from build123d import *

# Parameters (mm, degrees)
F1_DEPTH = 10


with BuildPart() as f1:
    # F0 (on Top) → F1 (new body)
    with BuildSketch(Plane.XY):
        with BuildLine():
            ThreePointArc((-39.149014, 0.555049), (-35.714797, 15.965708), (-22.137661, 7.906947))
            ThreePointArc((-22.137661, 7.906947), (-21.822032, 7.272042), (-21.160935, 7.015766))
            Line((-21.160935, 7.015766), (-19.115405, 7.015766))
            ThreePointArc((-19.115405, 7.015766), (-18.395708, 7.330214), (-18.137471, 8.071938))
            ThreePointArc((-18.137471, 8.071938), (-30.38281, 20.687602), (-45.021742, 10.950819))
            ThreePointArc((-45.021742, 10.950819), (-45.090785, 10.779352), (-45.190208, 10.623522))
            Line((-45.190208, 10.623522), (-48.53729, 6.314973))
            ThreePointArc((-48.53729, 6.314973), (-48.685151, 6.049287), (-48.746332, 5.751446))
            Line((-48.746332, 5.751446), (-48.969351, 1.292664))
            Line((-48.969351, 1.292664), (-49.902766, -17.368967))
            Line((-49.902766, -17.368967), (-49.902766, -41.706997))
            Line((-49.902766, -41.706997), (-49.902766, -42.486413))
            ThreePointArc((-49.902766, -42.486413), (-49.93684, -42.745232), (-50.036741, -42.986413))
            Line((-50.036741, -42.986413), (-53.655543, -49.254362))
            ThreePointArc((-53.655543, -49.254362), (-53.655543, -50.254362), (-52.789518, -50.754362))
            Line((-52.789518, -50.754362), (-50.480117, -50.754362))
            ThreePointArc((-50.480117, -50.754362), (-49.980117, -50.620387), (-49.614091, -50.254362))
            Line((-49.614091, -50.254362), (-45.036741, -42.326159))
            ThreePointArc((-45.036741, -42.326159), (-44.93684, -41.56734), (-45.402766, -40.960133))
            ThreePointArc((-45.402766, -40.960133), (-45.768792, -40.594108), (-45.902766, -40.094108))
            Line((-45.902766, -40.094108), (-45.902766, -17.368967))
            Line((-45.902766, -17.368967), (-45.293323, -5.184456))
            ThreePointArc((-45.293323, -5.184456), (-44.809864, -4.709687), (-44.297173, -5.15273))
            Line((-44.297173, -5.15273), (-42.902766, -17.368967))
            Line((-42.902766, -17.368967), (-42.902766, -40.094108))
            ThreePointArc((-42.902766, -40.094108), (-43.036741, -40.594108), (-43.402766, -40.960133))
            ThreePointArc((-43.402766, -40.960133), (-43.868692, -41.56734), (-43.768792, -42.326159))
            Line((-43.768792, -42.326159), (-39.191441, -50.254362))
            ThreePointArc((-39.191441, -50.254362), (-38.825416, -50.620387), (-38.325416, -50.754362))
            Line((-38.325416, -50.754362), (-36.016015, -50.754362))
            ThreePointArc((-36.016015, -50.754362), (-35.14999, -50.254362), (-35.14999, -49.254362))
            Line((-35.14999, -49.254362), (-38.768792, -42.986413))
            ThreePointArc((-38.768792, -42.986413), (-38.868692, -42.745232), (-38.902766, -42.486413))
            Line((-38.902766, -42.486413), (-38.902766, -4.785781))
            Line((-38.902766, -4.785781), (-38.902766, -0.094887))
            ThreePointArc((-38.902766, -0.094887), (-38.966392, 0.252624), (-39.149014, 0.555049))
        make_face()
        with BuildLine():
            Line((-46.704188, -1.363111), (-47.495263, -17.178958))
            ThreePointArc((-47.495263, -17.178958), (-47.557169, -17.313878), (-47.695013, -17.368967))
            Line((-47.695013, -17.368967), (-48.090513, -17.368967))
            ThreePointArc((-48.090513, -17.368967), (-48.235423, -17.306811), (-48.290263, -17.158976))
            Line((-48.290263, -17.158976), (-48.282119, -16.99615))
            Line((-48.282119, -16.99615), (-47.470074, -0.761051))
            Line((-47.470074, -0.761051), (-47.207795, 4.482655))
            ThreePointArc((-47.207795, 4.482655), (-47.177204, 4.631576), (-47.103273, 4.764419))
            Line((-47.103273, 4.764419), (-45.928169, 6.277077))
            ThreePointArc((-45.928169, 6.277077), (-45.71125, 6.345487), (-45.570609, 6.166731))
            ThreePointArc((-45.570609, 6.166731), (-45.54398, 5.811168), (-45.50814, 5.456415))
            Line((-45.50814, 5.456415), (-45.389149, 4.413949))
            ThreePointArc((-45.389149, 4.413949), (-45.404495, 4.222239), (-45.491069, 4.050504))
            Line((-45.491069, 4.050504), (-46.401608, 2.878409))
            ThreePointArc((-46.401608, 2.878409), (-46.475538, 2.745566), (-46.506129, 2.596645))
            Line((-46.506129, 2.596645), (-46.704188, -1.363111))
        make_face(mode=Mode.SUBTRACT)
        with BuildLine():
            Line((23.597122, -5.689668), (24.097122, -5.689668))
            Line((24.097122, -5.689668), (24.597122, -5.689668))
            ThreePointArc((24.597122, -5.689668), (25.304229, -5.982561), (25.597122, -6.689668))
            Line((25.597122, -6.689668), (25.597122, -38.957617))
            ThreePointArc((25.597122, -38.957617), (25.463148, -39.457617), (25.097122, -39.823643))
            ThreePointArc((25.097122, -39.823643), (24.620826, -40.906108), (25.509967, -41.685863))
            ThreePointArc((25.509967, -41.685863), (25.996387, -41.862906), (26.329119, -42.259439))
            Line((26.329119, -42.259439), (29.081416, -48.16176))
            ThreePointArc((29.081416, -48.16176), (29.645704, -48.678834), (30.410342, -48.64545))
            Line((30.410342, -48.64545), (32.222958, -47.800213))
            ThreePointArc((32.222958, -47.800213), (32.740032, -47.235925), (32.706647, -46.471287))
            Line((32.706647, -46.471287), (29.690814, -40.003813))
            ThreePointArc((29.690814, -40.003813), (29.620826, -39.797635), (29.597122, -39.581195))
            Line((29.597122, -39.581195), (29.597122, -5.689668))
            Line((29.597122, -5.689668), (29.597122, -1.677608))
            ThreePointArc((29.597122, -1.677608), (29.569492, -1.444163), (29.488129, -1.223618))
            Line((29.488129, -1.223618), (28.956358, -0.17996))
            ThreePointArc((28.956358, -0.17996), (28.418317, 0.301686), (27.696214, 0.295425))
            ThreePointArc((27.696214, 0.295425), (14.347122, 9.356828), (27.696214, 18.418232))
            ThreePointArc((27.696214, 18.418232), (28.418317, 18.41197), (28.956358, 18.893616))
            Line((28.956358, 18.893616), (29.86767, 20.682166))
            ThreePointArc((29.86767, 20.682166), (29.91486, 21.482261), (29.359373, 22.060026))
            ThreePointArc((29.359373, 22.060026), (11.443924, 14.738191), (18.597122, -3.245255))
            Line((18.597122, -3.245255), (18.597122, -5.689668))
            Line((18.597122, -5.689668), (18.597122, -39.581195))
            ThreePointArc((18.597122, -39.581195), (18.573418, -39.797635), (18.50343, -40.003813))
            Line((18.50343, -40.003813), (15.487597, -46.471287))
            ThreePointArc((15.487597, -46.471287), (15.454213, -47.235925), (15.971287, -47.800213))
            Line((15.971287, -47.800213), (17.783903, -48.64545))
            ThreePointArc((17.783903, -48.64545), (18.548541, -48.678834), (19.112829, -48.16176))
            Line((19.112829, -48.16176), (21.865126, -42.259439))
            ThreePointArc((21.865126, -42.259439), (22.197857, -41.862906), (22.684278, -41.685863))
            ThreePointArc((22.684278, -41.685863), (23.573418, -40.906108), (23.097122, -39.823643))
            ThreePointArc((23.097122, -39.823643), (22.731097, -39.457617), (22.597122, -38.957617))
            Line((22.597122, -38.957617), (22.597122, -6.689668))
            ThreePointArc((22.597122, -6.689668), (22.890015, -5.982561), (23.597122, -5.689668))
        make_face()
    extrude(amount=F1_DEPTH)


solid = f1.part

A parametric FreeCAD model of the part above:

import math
import FreeCAD as App
import Part
import Sketcher
from FreeCAD import Vector

doc = App.newDocument("Part")
body = doc.addObject("PartDesign::Body", "Body")
body.AllowCompound = True

# Sketch on XY plane
sketch1 = body.newObject("Sketcher::SketchObject", "Sketch")
sketch1.AttachmentSupport = (doc.getObject("XY_Plane"), [""])
sketch1.MapMode = "FlatFace"
sketch1.addGeometry([
    Part.ArcOfCircle(Part.Circle(Vector(-31.846847, 7.015766, 0), Vector(0, 0, 1), 9.75), math.radians(5.244337), math.radians(221.501344)),  # 0
    Part.ArcOfCircle(Part.Circle(Vector(-21.160934, 7.996599, 0), Vector(0, 0, 1), 0.980833), math.radians(-174.755637), math.radians(-90.00005)),  # 1
    Part.LineSegment(Vector(-21.160935, 7.015766, 0), Vector(-19.115405, 7.015766, 0)),  # 2
    Part.ArcOfCircle(Part.Circle(Vector(-19.115405, 7.996598, 0), Vector(0, 0, 1), 0.980832), math.radians(-90.000008), math.radians(4.405381)),  # 3
    Part.ArcOfCircle(Part.Circle(Vector(-31.846847, 7.015766, 0), Vector(0, 0, 1), 13.75), math.radians(4.40537), math.radians(163.370267)),  # 4
    Part.ArcOfCircle(Part.Circle(Vector(-45.97991, 11.237002, 0), Vector(0, 0, 1), 0.999994), math.radians(-37.841821), math.radians(-16.629665)),  # 5
    Part.LineSegment(Vector(-45.190208, 10.623522, 0), Vector(-48.53729, 6.314973, 0)),  # 6
    Part.ArcOfCircle(Part.Circle(Vector(-47.747579, 5.701491, 0), Vector(0, 0, 1), 1.000002), math.radians(142.15841), math.radians(177.136622)),  # 7
    Part.LineSegment(Vector(-48.746332, 5.751446, 0), Vector(-48.969351, 1.292664, 0)),  # 8
    Part.LineSegment(Vector(-48.969351, 1.292664, 0), Vector(-49.902766, -17.368967, 0)),  # 9
    Part.LineSegment(Vector(-49.902766, -17.368967, 0), Vector(-49.902766, -42.486413, 0)),  # 10
    Part.ArcOfCircle(Part.Circle(Vector(-50.902756, -42.486415, 0), Vector(0, 0, 1), 0.99999), math.radians(-30.000193), math.radians(0.000107)),  # 11
    Part.LineSegment(Vector(-50.036741, -42.986413, 0), Vector(-53.655543, -49.254362, 0)),  # 12
    Part.ArcOfCircle(Part.Circle(Vector(-52.789518, -49.754362, 0), Vector(0, 0, 1), 1), math.radians(150), math.radians(269.999977)),  # 13
    Part.LineSegment(Vector(-52.789518, -50.754362, 0), Vector(-50.480117, -50.754362, 0)),  # 14
    Part.ArcOfCircle(Part.Circle(Vector(-50.480119, -49.754358, 0), Vector(0, 0, 1), 1.000004), math.radians(-89.999896), math.radians(-30.000139)),  # 15
    Part.LineSegment(Vector(-49.614091, -50.254362, 0), Vector(-45.036741, -42.326159, 0)),  # 16
    Part.ArcOfCircle(Part.Circle(Vector(-45.902766, -41.826158, 0), Vector(0, 0, 1), 1), math.radians(-30.000046), math.radians(60.000002)),  # 17
    Part.ArcOfCircle(Part.Circle(Vector(-44.902771, -40.09411, 0), Vector(0, 0, 1), 0.999995), math.radians(179.99987), math.radians(240.000154)),  # 18
    Part.LineSegment(Vector(-45.902766, -40.094108, 0), Vector(-45.902766, -17.368967, 0)),  # 19
    Part.LineSegment(Vector(-45.902766, -17.368967, 0), Vector(-45.293323, -5.184456, 0)),  # 20
    Part.ArcOfCircle(Part.Circle(Vector(-44.793947, -5.209434, 0), Vector(0, 0, 1), 0.5), math.radians(6.511761), math.radians(177.136588)),  # 21
    Part.LineSegment(Vector(-44.297173, -5.15273, 0), Vector(-42.902766, -17.368967, 0)),  # 22
    Part.LineSegment(Vector(-42.902766, -17.368967, 0), Vector(-42.902766, -40.094108, 0)),  # 23
    Part.ArcOfCircle(Part.Circle(Vector(-43.902767, -40.094107, 0), Vector(0, 0, 1), 1.000001), math.radians(-59.999968), math.radians(-0.000055)),  # 24
    Part.ArcOfCircle(Part.Circle(Vector(-42.902765, -41.826159, 0), Vector(0, 0, 1), 1.000001), math.radians(120.000033), math.radians(209.999933)),  # 25
    Part.LineSegment(Vector(-43.768792, -42.326159, 0), Vector(-39.191441, -50.254362, 0)),  # 26
    Part.ArcOfCircle(Part.Circle(Vector(-38.325415, -49.754361, 0), Vector(0, 0, 1), 1.000001), math.radians(-149.999968), math.radians(-90.000055)),  # 27
    Part.LineSegment(Vector(-38.325416, -50.754362, 0), Vector(-36.016015, -50.754362, 0)),  # 28
    Part.ArcOfCircle(Part.Circle(Vector(-36.016015, -49.754362, 0), Vector(0, 0, 1), 1), math.radians(-89.999977), math.radians(30)),  # 29
    Part.LineSegment(Vector(-35.14999, -49.254362, 0), Vector(-38.768792, -42.986413, 0)),  # 30
    Part.ArcOfCircle(Part.Circle(Vector(-37.902763, -42.486413, 0), Vector(0, 0, 1), 1.000003), math.radians(179.999989), math.radians(209.999883)),  # 31
    Part.LineSegment(Vector(-38.902766, -42.486413, 0), Vector(-38.902766, -0.094887, 0)),  # 32
    Part.ArcOfCircle(Part.Circle(Vector(-39.883599, -0.094888, 0), Vector(0, 0, 1), 0.980833), math.radians(0.000069), math.radians(41.501361)),  # 33
    Part.LineSegment(Vector(-46.506129, 2.596645, 0), Vector(-46.704188, -1.363111, 0)),  # 34
    Part.LineSegment(Vector(-46.704188, -1.363111, 0), Vector(-47.495263, -17.178958, 0)),  # 35
    Part.ArcOfCircle(Part.Circle(Vector(-47.695012, -17.168969, 0), Vector(0, 0, 1), 0.199998), math.radians(-90.000359), math.radians(-2.862959)),  # 36
    Part.LineSegment(Vector(-47.695013, -17.368967, 0), Vector(-48.090513, -17.368967, 0)),  # 37
    Part.ArcOfCircle(Part.Circle(Vector(-48.090512, -17.168967, 0), Vector(0, 0, 1), 0.2), math.radians(177.136662), math.radians(269.999852)),  # 38
    Part.LineSegment(Vector(-48.290263, -17.158976, 0), Vector(-48.282119, -16.99615, 0)),  # 39
    Part.LineSegment(Vector(-48.282119, -16.99615, 0), Vector(-47.470074, -0.761051, 0)),  # 40
    Part.LineSegment(Vector(-47.470074, -0.761051, 0), Vector(-47.207795, 4.482655, 0)),  # 41
    Part.ArcOfCircle(Part.Circle(Vector(-46.708417, 4.457677, 0), Vector(0, 0, 1), 0.500002), math.radians(142.158246), math.radians(177.136495)),  # 42
    Part.LineSegment(Vector(-47.103273, 4.764419, 0), Vector(-45.928169, 6.277077, 0)),  # 43
    Part.ArcOfCircle(Part.Circle(Vector(-45.770227, 6.154381, 0), Vector(0, 0, 1), 0.2), math.radians(3.540398), math.radians(142.158277)),  # 44
    Part.ArcOfCircle(Part.Circle(Vector(-31.847477, 7.015712, 0), Vector(0, 0, 1), 13.749368), math.radians(-176.459911), math.radians(-173.488155)),  # 45
    Part.LineSegment(Vector(-45.50814, 5.456415, 0), Vector(-45.389149, 4.413949, 0)),  # 46
    Part.ArcOfCircle(Part.Circle(Vector(-45.885926, 4.357246, 0), Vector(0, 0, 1), 0.500002), math.radians(-37.841616), math.radians(6.511693)),  # 47
    Part.LineSegment(Vector(-45.491069, 4.050504, 0), Vector(-46.401608, 2.878409, 0)),  # 48
    Part.ArcOfCircle(Part.Circle(Vector(-46.006743, 2.571665, 0), Vector(0, 0, 1), 0.50001), math.radians(142.158754), math.radians(177.136344)),  # 49
    Part.LineSegment(Vector(23.597122, -5.689668, 0), Vector(24.597122, -5.689668, 0)),  # 50
    Part.ArcOfCircle(Part.Circle(Vector(24.597123, -6.689667, 0), Vector(0, 0, 1), 0.999999), math.radians(-0.000043), math.radians(90.000043)),  # 51
    Part.LineSegment(Vector(25.597122, -6.689668, 0), Vector(25.597122, -38.957617, 0)),  # 52
    Part.ArcOfCircle(Part.Circle(Vector(24.597123, -38.957618, 0), Vector(0, 0, 1), 0.999999), math.radians(-60.000047), math.radians(0.000081)),  # 53
    Part.ArcOfCircle(Part.Circle(Vector(25.597122, -40.689668, 0), Vector(0, 0, 1), 1), math.radians(119.999996), math.radians(265.000049)),  # 54
    Part.ArcOfCircle(Part.Circle(Vector(25.422808, -42.682062, 0), Vector(0, 0, 1), 1.000005), math.radians(25.000192), math.radians(84.999846)),  # 55
    Part.LineSegment(Vector(26.329119, -42.259439, 0), Vector(29.081416, -48.16176, 0)),  # 56
    Part.ArcOfCircle(Part.Circle(Vector(29.987725, -47.73914, 0), Vector(0, 0, 1), 1.000002), math.radians(-154.99992), math.radians(-65.000118)),  # 57
    Part.LineSegment(Vector(30.410342, -48.64545, 0), Vector(32.222958, -47.800213, 0)),  # 58
    Part.ArcOfCircle(Part.Circle(Vector(31.800339, -46.893905, 0), Vector(0, 0, 1), 1), math.radians(-64.999957), math.radians(24.999995)),  # 59
    Part.LineSegment(Vector(32.706647, -46.471287, 0), Vector(29.690814, -40.003813, 0)),  # 60
    Part.ArcOfCircle(Part.Circle(Vector(30.597121, -39.581196, 0), Vector(0, 0, 1), 0.999999), math.radians(179.999971), math.radians(204.999989)),  # 61
    Part.LineSegment(Vector(29.597122, -39.581195, 0), Vector(29.597122, -1.677608, 0)),  # 62
    Part.ArcOfCircle(Part.Circle(Vector(28.597118, -1.677608, 0), Vector(0, 0, 1), 1.000004), math.radians(0.000028), math.radians(26.999887)),  # 63
    Part.LineSegment(Vector(29.488129, -1.223618, 0), Vector(28.956358, -0.17996, 0)),  # 64
    Part.ArcOfCircle(Part.Circle(Vector(28.065351, -0.633951, 0), Vector(0, 0, 1), 1.000001), math.radians(27.000004), math.radians(111.662374)),  # 65
    Part.ArcOfCircle(Part.Circle(Vector(24.097122, 9.356829, 0), Vector(0, 0, 1), 9.75), math.radians(68.337556), math.radians(291.662444)),  # 66
    Part.ArcOfCircle(Part.Circle(Vector(28.065352, 19.347605, 0), Vector(0, 0, 1), 0.999999), math.radians(-111.662493), math.radians(-26.999964)),  # 67
    Part.LineSegment(Vector(28.956358, 18.893616, 0), Vector(29.86767, 20.682166, 0)),  # 68
    Part.ArcOfCircle(Part.Circle(Vector(28.976664, 21.136157, 0), Vector(0, 0, 1), 1), math.radians(-27.00004), math.radians(67.498401)),  # 69
    Part.ArcOfCircle(Part.Circle(Vector(24.097123, 9.356828, 0), Vector(0, 0, 1), 13.75), math.radians(67.498409), math.radians(246.421818)),  # 70
    Part.LineSegment(Vector(18.597122, -3.245255, 0), Vector(18.597122, -39.581195, 0)),  # 71
    Part.ArcOfCircle(Part.Circle(Vector(17.597123, -39.581196, 0), Vector(0, 0, 1), 0.999999), math.radians(-24.999989), math.radians(0.000029)),  # 72
    Part.LineSegment(Vector(18.50343, -40.003813, 0), Vector(15.487597, -46.471287, 0)),  # 73
    Part.ArcOfCircle(Part.Circle(Vector(16.393907, -46.893904, 0), Vector(0, 0, 1), 1.000002), math.radians(155.000118), math.radians(244.99992)),  # 74
    Part.LineSegment(Vector(15.971287, -47.800213, 0), Vector(17.783903, -48.64545, 0)),  # 75
    Part.ArcOfCircle(Part.Circle(Vector(18.20652, -47.73914, 0), Vector(0, 0, 1), 1.000002), math.radians(-114.999882), math.radians(-25.00008)),  # 76
    Part.LineSegment(Vector(19.112829, -48.16176, 0), Vector(21.865126, -42.259439, 0)),  # 77
    Part.ArcOfCircle(Part.Circle(Vector(22.771434, -42.682059, 0), Vector(0, 0, 1), 1.000001), math.radians(95.000031), math.radians(154.999931)),  # 78
    Part.ArcOfCircle(Part.Circle(Vector(22.597122, -40.689668, 0), Vector(0, 0, 1), 1), math.radians(-84.999988), math.radians(60.000002)),  # 79
    Part.ArcOfCircle(Part.Circle(Vector(23.597126, -38.957615, 0), Vector(0, 0, 1), 1.000004), math.radians(-179.999896), math.radians(-120.000139)),  # 80
    Part.LineSegment(Vector(22.597122, -38.957617, 0), Vector(22.597122, -6.689668, 0)),  # 81
    Part.ArcOfCircle(Part.Circle(Vector(23.597121, -6.689667, 0), Vector(0, 0, 1), 0.999999), math.radians(89.999957), math.radians(180.000043)),  # 82
], False)
sketch1.addConstraint([
    Sketcher.Constraint("Coincident", 0, 1, 1, 1),
    Sketcher.Constraint("Coincident", 1, 2, 2, 1),
    Sketcher.Constraint("Coincident", 2, 2, 3, 1),
    Sketcher.Constraint("Coincident", 3, 2, 4, 1),
    Sketcher.Constraint("Coincident", 4, 2, 5, 2),
    Sketcher.Constraint("Coincident", 5, 1, 6, 1),
    Sketcher.Constraint("Coincident", 6, 2, 7, 1),
    Sketcher.Constraint("Coincident", 7, 2, 8, 1),
    Sketcher.Constraint("Coincident", 8, 2, 9, 1),
    Sketcher.Constraint("Coincident", 9, 2, 10, 1),
    Sketcher.Constraint("Coincident", 10, 2, 11, 2),
    Sketcher.Constraint("Coincident", 11, 1, 12, 1),
    Sketcher.Constraint("Coincident", 12, 2, 13, 1),
    Sketcher.Constraint("Coincident", 13, 2, 14, 1),
    Sketcher.Constraint("Coincident", 14, 2, 15, 1),
    Sketcher.Constraint("Coincident", 15, 2, 16, 1),
    Sketcher.Constraint("Coincident", 16, 2, 17, 1),
    Sketcher.Constraint("Coincident", 17, 2, 18, 2),
    Sketcher.Constraint("Coincident", 18, 1, 19, 1),
    Sketcher.Constraint("Coincident", 19, 2, 20, 1),
    Sketcher.Constraint("Coincident", 20, 2, 21, 2),
    Sketcher.Constraint("Coincident", 21, 1, 22, 1),
    Sketcher.Constraint("Coincident", 22, 2, 23, 1),
    Sketcher.Constraint("Coincident", 23, 2, 24, 2),
    Sketcher.Constraint("Coincident", 24, 1, 25, 1),
    Sketcher.Constraint("Coincident", 25, 2, 26, 1),
    Sketcher.Constraint("Coincident", 26, 2, 27, 1),
    Sketcher.Constraint("Coincident", 27, 2, 28, 1),
    Sketcher.Constraint("Coincident", 28, 2, 29, 1),
    Sketcher.Constraint("Coincident", 29, 2, 30, 1),
    Sketcher.Constraint("Coincident", 30, 2, 31, 2),
    Sketcher.Constraint("Coincident", 31, 1, 32, 1),
    Sketcher.Constraint("Coincident", 32, 2, 33, 1),
    Sketcher.Constraint("Coincident", 33, 2, 0, 2),
    Sketcher.Constraint("Coincident", 34, 2, 35, 1),
    Sketcher.Constraint("Coincident", 35, 2, 36, 2),
    Sketcher.Constraint("Coincident", 36, 1, 37, 1),
    Sketcher.Constraint("Coincident", 37, 2, 38, 2),
    Sketcher.Constraint("Coincident", 38, 1, 39, 1),
    Sketcher.Constraint("Coincident", 39, 2, 40, 1),
    Sketcher.Constraint("Coincident", 40, 2, 41, 1),
    Sketcher.Constraint("Coincident", 41, 2, 42, 2),
    Sketcher.Constraint("Coincident", 42, 1, 43, 1),
    Sketcher.Constraint("Coincident", 43, 2, 44, 2),
    Sketcher.Constraint("Coincident", 44, 1, 45, 1),
    Sketcher.Constraint("Coincident", 45, 2, 46, 1),
    Sketcher.Constraint("Coincident", 46, 2, 47, 2),
    Sketcher.Constraint("Coincident", 47, 1, 48, 1),
    Sketcher.Constraint("Coincident", 48, 2, 49, 1),
    Sketcher.Constraint("Coincident", 49, 2, 34, 1),
    Sketcher.Constraint("Coincident", 50, 2, 51, 2),
    Sketcher.Constraint("Coincident", 51, 1, 52, 1),
    Sketcher.Constraint("Coincident", 52, 2, 53, 2),
    Sketcher.Constraint("Coincident", 53, 1, 54, 1),
    Sketcher.Constraint("Coincident", 54, 2, 55, 2),
    Sketcher.Constraint("Coincident", 55, 1, 56, 1),
    Sketcher.Constraint("Coincident", 56, 2, 57, 1),
    Sketcher.Constraint("Coincident", 57, 2, 58, 1),
    Sketcher.Constraint("Coincident", 58, 2, 59, 1),
    Sketcher.Constraint("Coincident", 59, 2, 60, 1),
    Sketcher.Constraint("Coincident", 60, 2, 61, 2),
    Sketcher.Constraint("Coincident", 61, 1, 62, 1),
    Sketcher.Constraint("Coincident", 62, 2, 63, 1),
    Sketcher.Constraint("Coincident", 63, 2, 64, 1),
    Sketcher.Constraint("Coincident", 64, 2, 65, 1),
    Sketcher.Constraint("Coincident", 65, 2, 66, 2),
    Sketcher.Constraint("Coincident", 66, 1, 67, 1),
    Sketcher.Constraint("Coincident", 67, 2, 68, 1),
    Sketcher.Constraint("Coincident", 68, 2, 69, 1),
    Sketcher.Constraint("Coincident", 69, 2, 70, 1),
    Sketcher.Constraint("Coincident", 70, 2, 71, 1),
    Sketcher.Constraint("Coincident", 71, 2, 72, 2),
    Sketcher.Constraint("Coincident", 72, 1, 73, 1),
    Sketcher.Constraint("Coincident", 73, 2, 74, 1),
    Sketcher.Constraint("Coincident", 74, 2, 75, 1),
    Sketcher.Constraint("Coincident", 75, 2, 76, 1),
    Sketcher.Constraint("Coincident", 76, 2, 77, 1),
    Sketcher.Constraint("Coincident", 77, 2, 78, 2),
    Sketcher.Constraint("Coincident", 78, 1, 79, 1),
    Sketcher.Constraint("Coincident", 79, 2, 80, 2),
    Sketcher.Constraint("Coincident", 80, 1, 81, 1),
    Sketcher.Constraint("Coincident", 81, 2, 82, 2),
    Sketcher.Constraint("Coincident", 82, 1, 50, 1),
    Sketcher.Constraint("Horizontal", 2),
    Sketcher.Constraint("Vertical", 10),
    Sketcher.Constraint("Horizontal", 14),
    Sketcher.Constraint("Vertical", 19),
    Sketcher.Constraint("Vertical", 23),
    Sketcher.Constraint("Horizontal", 28),
    Sketcher.Constraint("Vertical", 32),
    Sketcher.Constraint("Horizontal", 37),
    Sketcher.Constraint("Horizontal", 50),
    Sketcher.Constraint("Vertical", 52),
    Sketcher.Constraint("Vertical", 62),
    Sketcher.Constraint("Vertical", 71),
    Sketcher.Constraint("Vertical", 81),
    Sketcher.Constraint("Coincident", 4, 3, 0, 3),
    Sketcher.Constraint("Coincident", 70, 3, 66, 3),
    Sketcher.Constraint("Radius", 7, 1.000002),
    Sketcher.Constraint("Radius", 13, 1.0),
    Sketcher.Constraint("Radius", 17, 1.0),
    Sketcher.Constraint("Radius", 24, 1.000001),
    Sketcher.Constraint("Radius", 25, 1.000001),
    Sketcher.Constraint("Radius", 27, 1.000001),
    Sketcher.Constraint("Radius", 29, 1.0),
    Sketcher.Constraint("Radius", 51, 0.999999),
    Sketcher.Constraint("Radius", 53, 0.999999),
    Sketcher.Constraint("Radius", 54, 1.0),
    Sketcher.Constraint("Radius", 57, 1.000002),
    Sketcher.Constraint("Radius", 59, 1.0),
    Sketcher.Constraint("Radius", 61, 0.999999),
    Sketcher.Constraint("Radius", 65, 1.000001),
    Sketcher.Constraint("Radius", 67, 0.999999),
    Sketcher.Constraint("Radius", 69, 1.0),
    Sketcher.Constraint("Radius", 72, 0.999999),
    Sketcher.Constraint("Radius", 74, 1.000002),
    Sketcher.Constraint("Radius", 76, 1.000002),
    Sketcher.Constraint("Radius", 78, 1.000001),
    Sketcher.Constraint("Radius", 79, 1.0),
    Sketcher.Constraint("Radius", 82, 0.999999),
    Sketcher.Constraint("Radius", 21, 0.5),
    Sketcher.Constraint("Radius", 36, 0.199998),
    Sketcher.Constraint("Radius", 38, 0.2),
    Sketcher.Constraint("Radius", 42, 0.500002),
    Sketcher.Constraint("Radius", 44, 0.2),
    Sketcher.Constraint("DistanceX", 50, 1, 50, 2, 1.0),
    Sketcher.Constraint("Radius", 0, 9.75),
    Sketcher.Constraint("Radius", 4, 13.75),
    Sketcher.Constraint("Radius", 66, 9.75),
    Sketcher.Constraint("Radius", 70, 13.75),
    Sketcher.Constraint("Distance", 58, 2.000001),
    Sketcher.Constraint("Distance", 75, 2.000001),
    Sketcher.Constraint("Radius", 3, 0.980832),
    Sketcher.Constraint("Radius", 11, 0.99999),
    Sketcher.Constraint("Radius", 45, 13.749368),
    Sketcher.Constraint("Radius", 49, 0.50001),
    Sketcher.Constraint("DistanceX", 14, 1, 14, 2, 2.309401),
    Sketcher.Constraint("DistanceX", 28, 1, 28, 2, 2.309401),
    Sketcher.Constraint("DistanceX", 37, 2, 37, 1, 0.3955),
    Sketcher.Constraint("DistanceY", -1, 1, 5, 3, 11.237002),
    Sketcher.Constraint("Radius", 1, 0.980833),
    Sketcher.Constraint("Radius", 5, 0.999994),
    Sketcher.Constraint("Radius", 15, 1.000004),
    Sketcher.Constraint("Radius", 18, 0.999995),
    Sketcher.Constraint("Radius", 31, 1.000003),
    Sketcher.Constraint("Radius", 33, 0.980833),
    Sketcher.Constraint("Radius", 47, 0.500002),
    Sketcher.Constraint("Radius", 55, 1.000005),
    Sketcher.Constraint("Radius", 63, 1.000004),
    Sketcher.Constraint("Radius", 80, 1.000004),
    Sketcher.Constraint("Distance", 16, 9.1547),
    Sketcher.Constraint("Distance", 26, 9.154701),
    Sketcher.Constraint("DistanceX", 2, 1, 2, 2, 2.04553),
    Sketcher.Constraint("DistanceY", 19, 1, 19, 2, 22.725141),
    Sketcher.Constraint("DistanceY", 23, 2, 23, 1, 22.725141),
    Sketcher.Constraint("DistanceY", 52, 2, 52, 1, 32.267949),
    Sketcher.Constraint("DistanceY", 71, 2, 71, 1, 36.33594),
    Sketcher.Constraint("DistanceY", 81, 1, 81, 2, 32.267949),
    Sketcher.Constraint("DistanceY", -1, 1, 1, 3, 7.996599),
    Sketcher.Constraint("DistanceX", 33, 3, -1, 1, 39.883599),
    Sketcher.Constraint("Distance", 9, 18.68496),
    Sketcher.Constraint("Distance", 22, 12.295561),
    Sketcher.Constraint("Distance", 35, 15.835619),
    Sketcher.Constraint("Distance", 39, 0.16303),
    Sketcher.Constraint("Distance", 41, 5.250261),
    Sketcher.Constraint("Distance", 56, 6.51249),
    Sketcher.Constraint("Distance", 60, 7.136068),
    Sketcher.Constraint("Distance", 73, 7.136068),
    Sketcher.Constraint("Distance", 77, 6.51249),
    Sketcher.Constraint("DistanceY", 10, 2, 10, 1, 25.117446),
    Sketcher.Constraint("DistanceY", 32, 1, 32, 2, 42.391526),
    Sketcher.Constraint("DistanceY", 62, 1, 62, 2, 37.903587),
    Sketcher.Constraint("DistanceX", 5, 3, -1, 1, 45.97991),
    Sketcher.Constraint("DistanceX", 7, 3, -1, 1, 47.747579),
    Sketcher.Constraint("DistanceY", -1, 1, 7, 3, 5.701491),
    Sketcher.Constraint("DistanceX", 15, 3, -1, 1, 50.480119),
    Sketcher.Constraint("DistanceY", 17, 3, -1, 1, 41.826158),
    Sketcher.Constraint("DistanceX", 18, 3, -1, 1, 44.902771),
    Sketcher.Constraint("DistanceY", 18, 3, -1, 1, 40.09411),
    Sketcher.Constraint("DistanceY", 25, 3, -1, 1, 41.826159),
    Sketcher.Constraint("DistanceY", 27, 3, -1, 1, 49.754361),
    Sketcher.Constraint("DistanceY", 33, 3, -1, 1, 0.094888),
    Sketcher.Constraint("DistanceX", 36, 3, -1, 1, 47.695012),
    Sketcher.Constraint("DistanceY", 36, 3, -1, 1, 17.168969),
    Sketcher.Constraint("DistanceY", -1, 1, 44, 3, 6.154381),
    Sketcher.Constraint("DistanceY", -1, 1, 45, 3, 7.015712),
    Sketcher.Constraint("DistanceY", 53, 3, -1, 1, 38.957618),
    Sketcher.Constraint("DistanceX", -1, 1, 54, 3, 25.597122),
    Sketcher.Constraint("DistanceY", 54, 3, -1, 1, 40.689668),
    Sketcher.Constraint("DistanceX", -1, 1, 55, 3, 25.422808),
    Sketcher.Constraint("DistanceY", 57, 3, -1, 1, 47.73914),
    Sketcher.Constraint("DistanceX", -1, 1, 59, 3, 31.800339),
    Sketcher.Constraint("DistanceX", -1, 1, 61, 3, 30.597121),
    Sketcher.Constraint("DistanceY", 63, 3, -1, 1, 1.677608),
    Sketcher.Constraint("DistanceX", -1, 1, 65, 3, 28.065351),
    Sketcher.Constraint("DistanceY", 65, 3, -1, 1, 0.633951),
    Sketcher.Constraint("DistanceX", -1, 1, 66, 3, 24.097122),
    Sketcher.Constraint("DistanceX", -1, 1, 76, 3, 18.20652),
    Sketcher.Constraint("DistanceY", 76, 3, -1, 1, 47.73914),
    Sketcher.Constraint("DistanceY", 78, 3, -1, 1, 42.682059),
    Sketcher.Constraint("DistanceY", 79, 3, -1, 1, 40.689668),
    Sketcher.Constraint("DistanceX", -1, 1, 82, 3, 23.597121),
    Sketcher.Constraint("DistanceX", 0, 1, -1, 1, 22.137661),
    Sketcher.Constraint("DistanceX", 3, 2, -1, 1, 18.137471),
    Sketcher.Constraint("DistanceY", -1, 1, 4, 2, 10.950819),
    Sketcher.Constraint("DistanceY", -1, 1, 5, 1, 10.623522),
    Sketcher.Constraint("DistanceX", 6, 2, -1, 1, 48.53729),
    Sketcher.Constraint("DistanceX", 7, 2, -1, 1, 48.746332),
    Sketcher.Constraint("DistanceX", 8, 2, -1, 1, 48.969351),
    Sketcher.Constraint("DistanceX", 11, 1, -1, 1, 50.036741),
    Sketcher.Constraint("DistanceY", 13, 2, -1, 1, 50.754362),
    Sketcher.Constraint("DistanceX", 15, 2, -1, 1, 49.614091),
    Sketcher.Constraint("DistanceY", 21, 1, -1, 1, 5.15273),
    Sketcher.Constraint("DistanceX", 25, 2, -1, 1, 43.768792),
    Sketcher.Constraint("DistanceY", 25, 2, -1, 1, 42.326159),
    Sketcher.Constraint("DistanceX", 26, 2, -1, 1, 39.191441),
    Sketcher.Constraint("DistanceX", 29, 2, -1, 1, 35.14999),
    Sketcher.Constraint("DistanceX", 30, 2, -1, 1, 38.768792),
    Sketcher.Constraint("DistanceY", -1, 1, 33, 2, 0.555049),
    Sketcher.Constraint("DistanceX", 34, 2, -1, 1, 46.704188),
    Sketcher.Constraint("DistanceY", 34, 2, -1, 1, 1.363111),
    Sketcher.Constraint("DistanceX", 39, 2, -1, 1, 48.282119),
    Sketcher.Constraint("DistanceY", 39, 2, -1, 1, 16.99615),
    Sketcher.Constraint("DistanceY", 40, 2, -1, 1, 0.761051),
    Sketcher.Constraint("DistanceY", -1, 1, 42, 1, 4.764419),
    Sketcher.Constraint("DistanceX", 43, 2, -1, 1, 45.928169),
    Sketcher.Constraint("DistanceX", 44, 1, -1, 1, 45.570609),
    Sketcher.Constraint("DistanceY", -1, 1, 44, 1, 6.166731),
    Sketcher.Constraint("DistanceX", 45, 2, -1, 1, 45.50814),
    Sketcher.Constraint("DistanceX", 46, 2, -1, 1, 45.389149),
    Sketcher.Constraint("DistanceY", -1, 1, 46, 2, 4.413949),
    Sketcher.Constraint("DistanceX", 47, 1, -1, 1, 45.491069),
    Sketcher.Constraint("DistanceX", 48, 2, -1, 1, 46.401608),
    Sketcher.Constraint("DistanceY", -1, 1, 48, 2, 2.878409),
    Sketcher.Constraint("DistanceX", 49, 2, -1, 1, 46.506129),
    Sketcher.Constraint("DistanceX", -1, 1, 50, 2, 24.597122),
    Sketcher.Constraint("DistanceY", 50, 2, -1, 1, 5.689668),
    Sketcher.Constraint("DistanceY", 51, 1, -1, 1, 6.689668),
    Sketcher.Constraint("DistanceX", -1, 1, 55, 1, 26.329119),
    Sketcher.Constraint("DistanceY", 56, 2, -1, 1, 48.16176),
    Sketcher.Constraint("DistanceY", 57, 2, -1, 1, 48.64545),
    Sketcher.Constraint("DistanceX", -1, 1, 63, 2, 29.488129),
    Sketcher.Constraint("DistanceX", -1, 1, 64, 2, 28.956358),
    Sketcher.Constraint("DistanceY", -1, 1, 66, 1, 18.418232),
    Sketcher.Constraint("DistanceX", -1, 1, 68, 2, 29.86767),
    Sketcher.Constraint("DistanceX", -1, 1, 70, 2, 18.597122),
    Sketcher.Constraint("DistanceX", -1, 1, 72, 1, 18.50343),
    Sketcher.Constraint("DistanceY", 75, 2, -1, 1, 48.64545),
    Sketcher.Constraint("DistanceX", -1, 1, 76, 2, 19.112829),
    Sketcher.Constraint("DistanceY", 77, 2, -1, 1, 42.259439),
    Sketcher.Constraint("DistanceY", 81, 2, -1, 1, 6.689668),
    Sketcher.Constraint("Distance", 8, 4.464356),
    Sketcher.Constraint("Distance", 12, 7.237604),
    Sketcher.Constraint("Distance", 20, 12.199743),
    Sketcher.Constraint("Distance", 30, 7.237604),
    Sketcher.Constraint("Distance", 34, 3.964706),
    Sketcher.Constraint("Distance", 40, 16.255395),
    Sketcher.Constraint("Distance", 43, 1.915464),
    Sketcher.Constraint("Distance", 48, 1.484213),
    Sketcher.Constraint("Distance", 68, 2.007337),
    Sketcher.Constraint("DistanceX", 11, 3, -1, 1, 50.902756),
    Sketcher.Constraint("DistanceY", 11, 3, -1, 1, 42.486415),
    Sketcher.Constraint("DistanceX", 13, 3, -1, 1, 52.789518),
    Sketcher.Constraint("DistanceX", 21, 3, -1, 1, 44.793947),
    Sketcher.Constraint("DistanceY", 21, 3, -1, 1, 5.209434),
    Sketcher.Constraint("DistanceX", 24, 3, -1, 1, 43.902767),
    Sketcher.Constraint("DistanceX", 29, 3, -1, 1, 36.016015),
    Sketcher.Constraint("DistanceX", 38, 3, -1, 1, 48.090512),
    Sketcher.Constraint("DistanceX", 42, 3, -1, 1, 46.708417),
    Sketcher.Constraint("DistanceY", 59, 3, -1, 1, 46.893905),
    Sketcher.Constraint("DistanceY", 61, 3, -1, 1, 39.581196),
    Sketcher.Constraint("DistanceX", -1, 1, 67, 3, 28.065352),
    Sketcher.Constraint("DistanceX", -1, 1, 69, 3, 28.976664),
    Sketcher.Constraint("DistanceY", 72, 3, -1, 1, 39.581196),
    Sketcher.Constraint("DistanceX", -1, 1, 74, 3, 16.393907),
    Sketcher.Constraint("DistanceY", 74, 3, -1, 1, 46.893904),
    Sketcher.Constraint("DistanceX", 1, 2, -1, 1, 21.160935),
    Sketcher.Constraint("DistanceX", 13, 2, -1, 1, 52.789518),
    Sketcher.Constraint("DistanceX", 17, 2, -1, 1, 45.402766),
    Sketcher.Constraint("DistanceY", 18, 1, -1, 1, 40.094108),
    Sketcher.Constraint("DistanceX", 24, 1, -1, 1, 43.402766),
    Sketcher.Constraint("DistanceX", 27, 2, -1, 1, 38.325416),
    Sketcher.Constraint("DistanceY", 31, 1, -1, 1, 42.486413),
    Sketcher.Constraint("DistanceX", 36, 1, -1, 1, 47.695013),
    Sketcher.Constraint("DistanceX", -1, 1, 53, 1, 25.097122),
    Sketcher.Constraint("DistanceX", -1, 1, 54, 2, 25.509967),
    Sketcher.Constraint("DistanceX", -1, 1, 59, 2, 32.706647),
    Sketcher.Constraint("DistanceY", 61, 1, -1, 1, 39.581195),
    Sketcher.Constraint("DistanceX", -1, 1, 65, 2, 27.696214),
    Sketcher.Constraint("DistanceX", -1, 1, 69, 2, 29.359373),
    Sketcher.Constraint("DistanceX", -1, 1, 78, 1, 22.684278),
    Sketcher.Constraint("DistanceX", -1, 1, 79, 2, 23.097122),
])
pad1 = body.newObject("PartDesign::Pad", "Pad")
pad1.Profile = sketch1
pad1.Length = 10

doc.recompute()
